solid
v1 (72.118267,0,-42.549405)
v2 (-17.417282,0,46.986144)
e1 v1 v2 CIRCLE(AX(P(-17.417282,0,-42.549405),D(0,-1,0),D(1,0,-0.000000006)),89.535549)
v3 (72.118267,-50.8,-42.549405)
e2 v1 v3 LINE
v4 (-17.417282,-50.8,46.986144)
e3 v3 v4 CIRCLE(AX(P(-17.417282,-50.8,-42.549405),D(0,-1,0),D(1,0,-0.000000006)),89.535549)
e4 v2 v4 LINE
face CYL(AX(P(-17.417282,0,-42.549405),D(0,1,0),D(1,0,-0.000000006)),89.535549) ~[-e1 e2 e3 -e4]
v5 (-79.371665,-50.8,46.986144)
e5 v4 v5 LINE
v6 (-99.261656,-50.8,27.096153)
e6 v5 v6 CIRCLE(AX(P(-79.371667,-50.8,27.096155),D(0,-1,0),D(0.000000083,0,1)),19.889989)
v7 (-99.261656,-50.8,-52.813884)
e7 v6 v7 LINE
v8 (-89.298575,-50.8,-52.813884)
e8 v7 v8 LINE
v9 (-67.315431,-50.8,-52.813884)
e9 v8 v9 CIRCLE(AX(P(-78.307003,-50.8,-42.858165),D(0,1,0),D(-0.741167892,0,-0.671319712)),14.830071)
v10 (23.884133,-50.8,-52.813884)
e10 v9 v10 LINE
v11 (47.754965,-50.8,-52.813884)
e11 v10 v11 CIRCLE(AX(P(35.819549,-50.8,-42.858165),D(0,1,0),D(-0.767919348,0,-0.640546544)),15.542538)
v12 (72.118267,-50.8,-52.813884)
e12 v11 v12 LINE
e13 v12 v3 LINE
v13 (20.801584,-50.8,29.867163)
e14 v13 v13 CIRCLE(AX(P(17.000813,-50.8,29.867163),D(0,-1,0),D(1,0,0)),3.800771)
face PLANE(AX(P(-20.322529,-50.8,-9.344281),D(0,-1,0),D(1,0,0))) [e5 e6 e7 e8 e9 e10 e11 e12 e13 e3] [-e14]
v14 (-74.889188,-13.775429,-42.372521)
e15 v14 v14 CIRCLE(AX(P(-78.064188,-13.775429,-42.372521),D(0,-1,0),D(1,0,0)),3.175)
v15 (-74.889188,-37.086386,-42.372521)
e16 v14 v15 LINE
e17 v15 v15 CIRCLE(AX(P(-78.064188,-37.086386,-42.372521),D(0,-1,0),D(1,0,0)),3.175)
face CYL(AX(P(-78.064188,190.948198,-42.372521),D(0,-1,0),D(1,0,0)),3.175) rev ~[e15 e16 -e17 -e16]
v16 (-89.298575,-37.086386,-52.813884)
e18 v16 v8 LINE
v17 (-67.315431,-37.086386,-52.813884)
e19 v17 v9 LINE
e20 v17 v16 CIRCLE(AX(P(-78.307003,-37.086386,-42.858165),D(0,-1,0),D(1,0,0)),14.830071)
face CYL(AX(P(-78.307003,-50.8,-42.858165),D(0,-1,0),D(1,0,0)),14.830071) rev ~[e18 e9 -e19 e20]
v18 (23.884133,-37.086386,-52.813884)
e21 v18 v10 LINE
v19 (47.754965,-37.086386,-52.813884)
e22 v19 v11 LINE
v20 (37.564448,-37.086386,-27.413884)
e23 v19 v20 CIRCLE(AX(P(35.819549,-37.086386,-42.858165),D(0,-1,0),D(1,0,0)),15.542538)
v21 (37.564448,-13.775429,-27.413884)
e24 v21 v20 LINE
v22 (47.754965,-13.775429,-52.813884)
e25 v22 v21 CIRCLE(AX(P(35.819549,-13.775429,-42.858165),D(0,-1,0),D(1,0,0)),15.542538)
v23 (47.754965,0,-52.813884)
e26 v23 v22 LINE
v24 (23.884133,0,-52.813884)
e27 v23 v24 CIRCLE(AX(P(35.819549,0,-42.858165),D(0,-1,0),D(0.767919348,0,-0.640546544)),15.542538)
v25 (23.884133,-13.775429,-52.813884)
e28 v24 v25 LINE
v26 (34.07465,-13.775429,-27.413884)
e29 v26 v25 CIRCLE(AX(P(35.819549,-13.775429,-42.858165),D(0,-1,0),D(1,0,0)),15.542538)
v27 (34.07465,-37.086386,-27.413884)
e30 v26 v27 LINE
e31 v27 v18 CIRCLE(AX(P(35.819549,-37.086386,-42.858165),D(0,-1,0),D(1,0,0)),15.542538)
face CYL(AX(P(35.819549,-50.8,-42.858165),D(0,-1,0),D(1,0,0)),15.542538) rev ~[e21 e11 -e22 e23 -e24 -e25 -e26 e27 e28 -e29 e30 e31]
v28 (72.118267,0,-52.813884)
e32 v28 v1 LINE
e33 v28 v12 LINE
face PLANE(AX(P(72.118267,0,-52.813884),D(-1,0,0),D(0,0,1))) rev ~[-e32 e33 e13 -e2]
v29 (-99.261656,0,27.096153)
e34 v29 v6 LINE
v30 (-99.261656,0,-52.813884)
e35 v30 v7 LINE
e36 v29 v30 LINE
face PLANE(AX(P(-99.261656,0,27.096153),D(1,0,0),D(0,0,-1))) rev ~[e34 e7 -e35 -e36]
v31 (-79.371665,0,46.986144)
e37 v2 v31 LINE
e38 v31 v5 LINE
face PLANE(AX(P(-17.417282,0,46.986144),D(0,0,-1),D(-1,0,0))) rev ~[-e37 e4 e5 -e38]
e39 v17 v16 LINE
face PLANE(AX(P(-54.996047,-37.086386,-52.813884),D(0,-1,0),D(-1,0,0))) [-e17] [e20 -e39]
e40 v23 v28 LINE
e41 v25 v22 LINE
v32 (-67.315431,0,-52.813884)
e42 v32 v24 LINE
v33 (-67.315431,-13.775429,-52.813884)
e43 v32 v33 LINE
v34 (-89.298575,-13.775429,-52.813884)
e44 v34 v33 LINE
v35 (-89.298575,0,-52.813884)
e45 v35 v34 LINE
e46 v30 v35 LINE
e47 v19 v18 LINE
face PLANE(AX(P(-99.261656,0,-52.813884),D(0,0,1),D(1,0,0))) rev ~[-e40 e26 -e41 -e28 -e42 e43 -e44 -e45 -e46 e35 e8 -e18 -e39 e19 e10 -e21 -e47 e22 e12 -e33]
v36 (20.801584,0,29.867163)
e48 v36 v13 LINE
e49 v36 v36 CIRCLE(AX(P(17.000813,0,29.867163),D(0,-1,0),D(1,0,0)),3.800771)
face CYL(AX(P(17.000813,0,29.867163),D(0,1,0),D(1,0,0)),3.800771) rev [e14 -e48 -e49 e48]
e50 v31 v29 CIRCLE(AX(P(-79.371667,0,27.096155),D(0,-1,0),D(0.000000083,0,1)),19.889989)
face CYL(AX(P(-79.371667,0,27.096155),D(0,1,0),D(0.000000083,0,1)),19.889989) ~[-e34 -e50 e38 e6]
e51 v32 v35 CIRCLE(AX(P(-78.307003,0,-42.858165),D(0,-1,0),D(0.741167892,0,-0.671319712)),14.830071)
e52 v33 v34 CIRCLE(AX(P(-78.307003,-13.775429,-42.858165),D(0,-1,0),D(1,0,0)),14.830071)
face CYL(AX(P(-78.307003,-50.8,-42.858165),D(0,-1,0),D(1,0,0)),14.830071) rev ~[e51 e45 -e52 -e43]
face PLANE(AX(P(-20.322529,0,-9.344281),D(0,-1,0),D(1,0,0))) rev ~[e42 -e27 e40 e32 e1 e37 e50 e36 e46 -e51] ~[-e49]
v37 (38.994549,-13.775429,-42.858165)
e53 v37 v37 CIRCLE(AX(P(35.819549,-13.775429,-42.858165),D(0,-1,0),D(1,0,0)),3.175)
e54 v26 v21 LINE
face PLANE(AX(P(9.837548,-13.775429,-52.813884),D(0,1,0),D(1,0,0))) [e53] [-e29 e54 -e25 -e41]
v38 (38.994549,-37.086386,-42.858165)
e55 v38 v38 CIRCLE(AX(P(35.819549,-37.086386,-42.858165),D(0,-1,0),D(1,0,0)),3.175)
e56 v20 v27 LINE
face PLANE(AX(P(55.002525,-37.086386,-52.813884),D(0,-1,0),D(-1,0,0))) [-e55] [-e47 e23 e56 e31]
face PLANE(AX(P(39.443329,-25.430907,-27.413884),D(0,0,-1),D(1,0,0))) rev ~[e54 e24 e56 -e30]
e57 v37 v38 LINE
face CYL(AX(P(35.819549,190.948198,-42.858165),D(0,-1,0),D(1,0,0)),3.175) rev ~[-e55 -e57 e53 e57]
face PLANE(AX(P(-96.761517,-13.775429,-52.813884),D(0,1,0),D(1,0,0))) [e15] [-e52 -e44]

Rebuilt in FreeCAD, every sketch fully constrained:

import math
import FreeCAD as App
import Part
import Sketcher
from FreeCAD import Vector
Q = App.Units.Quantity

doc = App.newDocument("Part")
body = doc.addObject("PartDesign::Body", "Body")

sketch1 = body.newObject("Sketcher::SketchObject", "Sketch")
sketch1.AttachmentSupport = (doc.getObject("XZ_Plane"), [""])
sketch1.MapMode = "FlatFace"
sketch1.addGeometry([
    Part.LineSegment(Vector(-17.4, 47, 0), Vector(-79.4, 47, 0)),
    Part.ArcOfCircle(Part.Circle(Vector(-79.4, 27.1, 0), Vector(0, 0, 1), 19.9), math.radians(90), math.radians(180)),
    Part.LineSegment(Vector(-99.3, 27.1, 0), Vector(-99.3, -52.8, 0)),
    Part.LineSegment(Vector(-99.3, -52.8, 0), Vector(72.1, -52.8, 0)),
    Part.LineSegment(Vector(72.1, -52.8, 0), Vector(72.1, -42.5, 0)),
    Part.ArcOfCircle(Part.Circle(Vector(-17.4, -42.5, 0), Vector(0, 0, 1), 89.5), math.radians(0), math.radians(90)),
    Part.Circle(Vector(17, 29.9, 0), Vector(0, 0, 1), 3.8),
], False)
sketch1.addConstraint([
    Sketcher.Constraint("Tangent", 0, 2, 1, 1),
    Sketcher.Constraint("Tangent", 1, 2, 2, 1),
    Sketcher.Constraint("Coincident", 2, 2, 3, 1),
    Sketcher.Constraint("Coincident", 3, 2, 4, 1),
    Sketcher.Constraint("Tangent", 4, 2, 5, 1),
    Sketcher.Constraint("Tangent", 5, 2, 0, 1),
    Sketcher.Constraint("Horizontal", 0),
    Sketcher.Constraint("Vertical", 2),
    Sketcher.Constraint("Horizontal", 3),
    Sketcher.Constraint("Vertical", 4),
    Sketcher.Constraint("Radius", 1, Q("19.889989 mm")),
    Sketcher.Constraint("Radius", 5, Q("89.535549 mm")),
    Sketcher.Constraint("Diameter", 6, Q("7.601542 mm")),
    Sketcher.Constraint("DistanceY", 4, 1, 4, 2, Q("10.264479 mm")),
    Sketcher.Constraint("DistanceX", 0, 2, 0, 1, Q("61.954383 mm")),
    Sketcher.Constraint("DistanceX", 5, 3, -1, 1, Q("17.417282 mm")),
    Sketcher.Constraint("DistanceX", 1, 3, 6, 3, Q("96.37248 mm")),
    Sketcher.Constraint("DistanceY", 1, 3, 6, 3, Q("2.771008 mm")),
    Sketcher.Constraint("DistanceY", -1, 1, 1, 3, Q("27.096155 mm")),
])
pad1 = body.newObject("PartDesign::Pad", "Pad")
pad1.Profile = sketch1
pad1.Length = Q("2 in")

sketch2 = body.newObject("Sketcher::SketchObject", "Sketch001")
sketch2.AttachmentSupport = (doc.getObject("XZ_Plane"), [""])
sketch2.MapMode = "FlatFace"
sketch2.AttachmentOffset = App.Placement(Vector(0, 0, 2 * 25.4), App.Rotation())
sketch2.addGeometry([
    Part.Circle(Vector(-78.3, -42.9, 0), Vector(0, 0, 1), 3.2),
    Part.Circle(Vector(35.8, -42.9, 0), Vector(0, 0, 1), 3.2),
], False)
sketch2.addConstraint([
    Sketcher.Constraint("Equal", 0, 1),
    Sketcher.Constraint("Horizontal", 0, 3, 1, 3),
    Sketcher.Constraint("Diameter", 0, Q("0.25 in")),
    Sketcher.Constraint("DistanceX", -1, 1, 1, 3, Q("35.819549 mm")),
    Sketcher.Constraint("DistanceX", 0, 3, -1, 1, Q("78.307003 mm")),
    Sketcher.Constraint("DistanceY", 0, 3, -1, 1, Q("42.858165 mm")),
])
doc.recompute()
hole = body.newObject("PartDesign::Hole", "Hole")
hole.Profile = sketch2
hole.ThreadType = "None"
hole.Diameter = Q("0.25 in")
hole.DepthType = "ThroughAll"

sketch3 = body.newObject("Sketcher::SketchObject", "Sketch002")
sketch3.AttachmentSupport = (doc.getObject("XZ_Plane"), [""])
sketch3.MapMode = "FlatFace"
sketch3.AttachmentOffset = App.Placement(Vector(0, 0, 2 * 25.4), App.Rotation())
sketch3.addGeometry([
    Part.Circle(Vector(-78, -43, 0), Vector(0, 0, 1), 15),
    Part.Circle(Vector(36, -43, 0), Vector(0, 0, 1), 16),
], False)
sketch3.addConstraint([
    Sketcher.Constraint("Horizontal", 0, 3, 1, 3),
    Sketcher.Constraint("Diameter", 0, Q("29.660142 mm")),
    Sketcher.Constraint("Diameter", 1, Q("31.085076 mm")),
    Sketcher.Constraint("DistanceX", -1, 1, 1, 3, Q("35.819549 mm")),
    Sketcher.Constraint("DistanceX", 0, 3, -1, 1, Q("78.307003 mm")),
    Sketcher.Constraint("DistanceY", 0, 3, -1, 1, Q("42.858165 mm")),
])
pocket1 = body.newObject("PartDesign::Pocket", "Pocket")
pocket1.Profile = sketch3
pocket1.Length = Q("2 in")

sketch4 = body.newObject("Sketcher::SketchObject", "Sketch003")
sketch4.AttachmentSupport = (doc.getObject("XY_Plane"), [""])
sketch4.MapMode = "FlatFace"
sketch4.AttachmentOffset = App.Placement(Vector(0, 0, -52.813884), App.Rotation())
sketch4.addGeometry([
    Part.LineSegment(Vector(55, -14, 0), Vector(55, -37, 0)),
    Part.LineSegment(Vector(55, -37, 0), Vector(10, -37, 0)),
    Part.LineSegment(Vector(10, -37, 0), Vector(10, -14, 0)),
    Part.LineSegment(Vector(10, -14, 0), Vector(55, -14, 0)),
    Part.LineSegment(Vector(-55, -14, 0), Vector(-55, -37, 0)),
    Part.LineSegment(Vector(-55, -37, 0), Vector(-97, -37, 0)),
    Part.LineSegment(Vector(-97, -37, 0), Vector(-97, -14, 0)),
    Part.LineSegment(Vector(-97, -14, 0), Vector(-55, -14, 0)),
], False)
sketch4.addConstraint([
    Sketcher.Constraint("Coincident", 0, 2, 1, 1),
    Sketcher.Constraint("Coincident", 1, 2, 2, 1),
    Sketcher.Constraint("Coincident", 2, 2, 3, 1),
    Sketcher.Constraint("Coincident", 3, 2, 0, 1),
    Sketcher.Constraint("Coincident", 4, 2, 5, 1),
    Sketcher.Constraint("Coincident", 5, 2, 6, 1),
    Sketcher.Constraint("Coincident", 6, 2, 7, 1),
    Sketcher.Constraint("Coincident", 7, 2, 4, 1),
    Sketcher.Constraint("Vertical", 0),
    Sketcher.Constraint("Horizontal", 1),
    Sketcher.Constraint("Vertical", 2),
    Sketcher.Constraint("Horizontal", 3),
    Sketcher.Constraint("Vertical", 4),
    Sketcher.Constraint("Horizontal", 5),
    Sketcher.Constraint("Vertical", 6),
    Sketcher.Constraint("Horizontal", 7),
    Sketcher.Constraint("Horizontal", 1, 2, 4, 2),
    Sketcher.Constraint("Horizontal", 3, 2, 6, 2),
    Sketcher.Constraint("DistanceX", 5, 2, 5, 1, Q("41.76547 mm")),
    Sketcher.Constraint("DistanceX", 1, 2, 1, 1, Q("45.164977 mm")),
    Sketcher.Constraint("DistanceY", 0, 2, 0, 1, Q("23.310957 mm")),
    Sketcher.Constraint("DistanceY", 2, 2, -1, 1, Q("13.775429 mm")),
    Sketcher.Constraint("DistanceX", 4, 2, 0, 2, Q("109.998572 mm")),
    Sketcher.Constraint("DistanceX", -1, 1, 0, 2, Q("55.002525 mm")),
])
pad2 = body.newObject("PartDesign::Pad", "Pad001")
pad2.Profile = sketch4
pad2.Length = Q("1 in")

sketch5 = body.newObject("Sketcher::SketchObject", "Sketch004")
sketch5.AttachmentSupport = (doc.getObject("XZ_Plane"), [""])
sketch5.MapMode = "FlatFace"
sketch5.AttachmentOffset = App.Placement(Vector(0, 0, 13.775429), App.Rotation())
sketch5.addGeometry(Part.Circle(Vector(35.8, -42.9, 0), Vector(0, 0, 1), 3.2), False)
sketch5.addConstraint([
    Sketcher.Constraint("Diameter", 0, Q("0.25 in")),
    Sketcher.Constraint("DistanceX", -1, 1, 0, 3, Q("35.819549 mm")),
    Sketcher.Constraint("DistanceY", 0, 3, -1, 1, Q("42.858165 mm")),
])
doc.recompute()
hole2 = body.newObject("PartDesign::Hole", "Hole001")
hole2.Profile = sketch5
hole2.ThreadType = "None"
hole2.Diameter = Q("0.25 in")
hole2.DepthType = "ThroughAll"
hole2.Reversed = True

sketch6 = body.newObject("Sketcher::SketchObject", "Sketch005")
sketch6.AttachmentSupport = (doc.getObject("XZ_Plane"), [""])
sketch6.MapMode = "FlatFace"
sketch6.AttachmentOffset = App.Placement(Vector(0, 0, 13.775429), App.Rotation())
sketch6.addGeometry(Part.Circle(Vector(-78.1, -42.4, 0), Vector(0, 0, 1), 3.2), False)
sketch6.addConstraint([
    Sketcher.Constraint("Diameter", 0, Q("0.25 in")),
    Sketcher.Constraint("DistanceX", 0, 3, -1, 1, Q("78.064188 mm")),
    Sketcher.Constraint("DistanceY", 0, 3, -1, 1, Q("42.372521 mm")),
])
doc.recompute()
hole3 = body.newObject("PartDesign::Hole", "Hole002")
hole3.Profile = sketch6
hole3.ThreadType = "None"
hole3.Diameter = Q("0.25 in")
hole3.DepthType = "ThroughAll"
hole3.Reversed = True

doc.recompute()
